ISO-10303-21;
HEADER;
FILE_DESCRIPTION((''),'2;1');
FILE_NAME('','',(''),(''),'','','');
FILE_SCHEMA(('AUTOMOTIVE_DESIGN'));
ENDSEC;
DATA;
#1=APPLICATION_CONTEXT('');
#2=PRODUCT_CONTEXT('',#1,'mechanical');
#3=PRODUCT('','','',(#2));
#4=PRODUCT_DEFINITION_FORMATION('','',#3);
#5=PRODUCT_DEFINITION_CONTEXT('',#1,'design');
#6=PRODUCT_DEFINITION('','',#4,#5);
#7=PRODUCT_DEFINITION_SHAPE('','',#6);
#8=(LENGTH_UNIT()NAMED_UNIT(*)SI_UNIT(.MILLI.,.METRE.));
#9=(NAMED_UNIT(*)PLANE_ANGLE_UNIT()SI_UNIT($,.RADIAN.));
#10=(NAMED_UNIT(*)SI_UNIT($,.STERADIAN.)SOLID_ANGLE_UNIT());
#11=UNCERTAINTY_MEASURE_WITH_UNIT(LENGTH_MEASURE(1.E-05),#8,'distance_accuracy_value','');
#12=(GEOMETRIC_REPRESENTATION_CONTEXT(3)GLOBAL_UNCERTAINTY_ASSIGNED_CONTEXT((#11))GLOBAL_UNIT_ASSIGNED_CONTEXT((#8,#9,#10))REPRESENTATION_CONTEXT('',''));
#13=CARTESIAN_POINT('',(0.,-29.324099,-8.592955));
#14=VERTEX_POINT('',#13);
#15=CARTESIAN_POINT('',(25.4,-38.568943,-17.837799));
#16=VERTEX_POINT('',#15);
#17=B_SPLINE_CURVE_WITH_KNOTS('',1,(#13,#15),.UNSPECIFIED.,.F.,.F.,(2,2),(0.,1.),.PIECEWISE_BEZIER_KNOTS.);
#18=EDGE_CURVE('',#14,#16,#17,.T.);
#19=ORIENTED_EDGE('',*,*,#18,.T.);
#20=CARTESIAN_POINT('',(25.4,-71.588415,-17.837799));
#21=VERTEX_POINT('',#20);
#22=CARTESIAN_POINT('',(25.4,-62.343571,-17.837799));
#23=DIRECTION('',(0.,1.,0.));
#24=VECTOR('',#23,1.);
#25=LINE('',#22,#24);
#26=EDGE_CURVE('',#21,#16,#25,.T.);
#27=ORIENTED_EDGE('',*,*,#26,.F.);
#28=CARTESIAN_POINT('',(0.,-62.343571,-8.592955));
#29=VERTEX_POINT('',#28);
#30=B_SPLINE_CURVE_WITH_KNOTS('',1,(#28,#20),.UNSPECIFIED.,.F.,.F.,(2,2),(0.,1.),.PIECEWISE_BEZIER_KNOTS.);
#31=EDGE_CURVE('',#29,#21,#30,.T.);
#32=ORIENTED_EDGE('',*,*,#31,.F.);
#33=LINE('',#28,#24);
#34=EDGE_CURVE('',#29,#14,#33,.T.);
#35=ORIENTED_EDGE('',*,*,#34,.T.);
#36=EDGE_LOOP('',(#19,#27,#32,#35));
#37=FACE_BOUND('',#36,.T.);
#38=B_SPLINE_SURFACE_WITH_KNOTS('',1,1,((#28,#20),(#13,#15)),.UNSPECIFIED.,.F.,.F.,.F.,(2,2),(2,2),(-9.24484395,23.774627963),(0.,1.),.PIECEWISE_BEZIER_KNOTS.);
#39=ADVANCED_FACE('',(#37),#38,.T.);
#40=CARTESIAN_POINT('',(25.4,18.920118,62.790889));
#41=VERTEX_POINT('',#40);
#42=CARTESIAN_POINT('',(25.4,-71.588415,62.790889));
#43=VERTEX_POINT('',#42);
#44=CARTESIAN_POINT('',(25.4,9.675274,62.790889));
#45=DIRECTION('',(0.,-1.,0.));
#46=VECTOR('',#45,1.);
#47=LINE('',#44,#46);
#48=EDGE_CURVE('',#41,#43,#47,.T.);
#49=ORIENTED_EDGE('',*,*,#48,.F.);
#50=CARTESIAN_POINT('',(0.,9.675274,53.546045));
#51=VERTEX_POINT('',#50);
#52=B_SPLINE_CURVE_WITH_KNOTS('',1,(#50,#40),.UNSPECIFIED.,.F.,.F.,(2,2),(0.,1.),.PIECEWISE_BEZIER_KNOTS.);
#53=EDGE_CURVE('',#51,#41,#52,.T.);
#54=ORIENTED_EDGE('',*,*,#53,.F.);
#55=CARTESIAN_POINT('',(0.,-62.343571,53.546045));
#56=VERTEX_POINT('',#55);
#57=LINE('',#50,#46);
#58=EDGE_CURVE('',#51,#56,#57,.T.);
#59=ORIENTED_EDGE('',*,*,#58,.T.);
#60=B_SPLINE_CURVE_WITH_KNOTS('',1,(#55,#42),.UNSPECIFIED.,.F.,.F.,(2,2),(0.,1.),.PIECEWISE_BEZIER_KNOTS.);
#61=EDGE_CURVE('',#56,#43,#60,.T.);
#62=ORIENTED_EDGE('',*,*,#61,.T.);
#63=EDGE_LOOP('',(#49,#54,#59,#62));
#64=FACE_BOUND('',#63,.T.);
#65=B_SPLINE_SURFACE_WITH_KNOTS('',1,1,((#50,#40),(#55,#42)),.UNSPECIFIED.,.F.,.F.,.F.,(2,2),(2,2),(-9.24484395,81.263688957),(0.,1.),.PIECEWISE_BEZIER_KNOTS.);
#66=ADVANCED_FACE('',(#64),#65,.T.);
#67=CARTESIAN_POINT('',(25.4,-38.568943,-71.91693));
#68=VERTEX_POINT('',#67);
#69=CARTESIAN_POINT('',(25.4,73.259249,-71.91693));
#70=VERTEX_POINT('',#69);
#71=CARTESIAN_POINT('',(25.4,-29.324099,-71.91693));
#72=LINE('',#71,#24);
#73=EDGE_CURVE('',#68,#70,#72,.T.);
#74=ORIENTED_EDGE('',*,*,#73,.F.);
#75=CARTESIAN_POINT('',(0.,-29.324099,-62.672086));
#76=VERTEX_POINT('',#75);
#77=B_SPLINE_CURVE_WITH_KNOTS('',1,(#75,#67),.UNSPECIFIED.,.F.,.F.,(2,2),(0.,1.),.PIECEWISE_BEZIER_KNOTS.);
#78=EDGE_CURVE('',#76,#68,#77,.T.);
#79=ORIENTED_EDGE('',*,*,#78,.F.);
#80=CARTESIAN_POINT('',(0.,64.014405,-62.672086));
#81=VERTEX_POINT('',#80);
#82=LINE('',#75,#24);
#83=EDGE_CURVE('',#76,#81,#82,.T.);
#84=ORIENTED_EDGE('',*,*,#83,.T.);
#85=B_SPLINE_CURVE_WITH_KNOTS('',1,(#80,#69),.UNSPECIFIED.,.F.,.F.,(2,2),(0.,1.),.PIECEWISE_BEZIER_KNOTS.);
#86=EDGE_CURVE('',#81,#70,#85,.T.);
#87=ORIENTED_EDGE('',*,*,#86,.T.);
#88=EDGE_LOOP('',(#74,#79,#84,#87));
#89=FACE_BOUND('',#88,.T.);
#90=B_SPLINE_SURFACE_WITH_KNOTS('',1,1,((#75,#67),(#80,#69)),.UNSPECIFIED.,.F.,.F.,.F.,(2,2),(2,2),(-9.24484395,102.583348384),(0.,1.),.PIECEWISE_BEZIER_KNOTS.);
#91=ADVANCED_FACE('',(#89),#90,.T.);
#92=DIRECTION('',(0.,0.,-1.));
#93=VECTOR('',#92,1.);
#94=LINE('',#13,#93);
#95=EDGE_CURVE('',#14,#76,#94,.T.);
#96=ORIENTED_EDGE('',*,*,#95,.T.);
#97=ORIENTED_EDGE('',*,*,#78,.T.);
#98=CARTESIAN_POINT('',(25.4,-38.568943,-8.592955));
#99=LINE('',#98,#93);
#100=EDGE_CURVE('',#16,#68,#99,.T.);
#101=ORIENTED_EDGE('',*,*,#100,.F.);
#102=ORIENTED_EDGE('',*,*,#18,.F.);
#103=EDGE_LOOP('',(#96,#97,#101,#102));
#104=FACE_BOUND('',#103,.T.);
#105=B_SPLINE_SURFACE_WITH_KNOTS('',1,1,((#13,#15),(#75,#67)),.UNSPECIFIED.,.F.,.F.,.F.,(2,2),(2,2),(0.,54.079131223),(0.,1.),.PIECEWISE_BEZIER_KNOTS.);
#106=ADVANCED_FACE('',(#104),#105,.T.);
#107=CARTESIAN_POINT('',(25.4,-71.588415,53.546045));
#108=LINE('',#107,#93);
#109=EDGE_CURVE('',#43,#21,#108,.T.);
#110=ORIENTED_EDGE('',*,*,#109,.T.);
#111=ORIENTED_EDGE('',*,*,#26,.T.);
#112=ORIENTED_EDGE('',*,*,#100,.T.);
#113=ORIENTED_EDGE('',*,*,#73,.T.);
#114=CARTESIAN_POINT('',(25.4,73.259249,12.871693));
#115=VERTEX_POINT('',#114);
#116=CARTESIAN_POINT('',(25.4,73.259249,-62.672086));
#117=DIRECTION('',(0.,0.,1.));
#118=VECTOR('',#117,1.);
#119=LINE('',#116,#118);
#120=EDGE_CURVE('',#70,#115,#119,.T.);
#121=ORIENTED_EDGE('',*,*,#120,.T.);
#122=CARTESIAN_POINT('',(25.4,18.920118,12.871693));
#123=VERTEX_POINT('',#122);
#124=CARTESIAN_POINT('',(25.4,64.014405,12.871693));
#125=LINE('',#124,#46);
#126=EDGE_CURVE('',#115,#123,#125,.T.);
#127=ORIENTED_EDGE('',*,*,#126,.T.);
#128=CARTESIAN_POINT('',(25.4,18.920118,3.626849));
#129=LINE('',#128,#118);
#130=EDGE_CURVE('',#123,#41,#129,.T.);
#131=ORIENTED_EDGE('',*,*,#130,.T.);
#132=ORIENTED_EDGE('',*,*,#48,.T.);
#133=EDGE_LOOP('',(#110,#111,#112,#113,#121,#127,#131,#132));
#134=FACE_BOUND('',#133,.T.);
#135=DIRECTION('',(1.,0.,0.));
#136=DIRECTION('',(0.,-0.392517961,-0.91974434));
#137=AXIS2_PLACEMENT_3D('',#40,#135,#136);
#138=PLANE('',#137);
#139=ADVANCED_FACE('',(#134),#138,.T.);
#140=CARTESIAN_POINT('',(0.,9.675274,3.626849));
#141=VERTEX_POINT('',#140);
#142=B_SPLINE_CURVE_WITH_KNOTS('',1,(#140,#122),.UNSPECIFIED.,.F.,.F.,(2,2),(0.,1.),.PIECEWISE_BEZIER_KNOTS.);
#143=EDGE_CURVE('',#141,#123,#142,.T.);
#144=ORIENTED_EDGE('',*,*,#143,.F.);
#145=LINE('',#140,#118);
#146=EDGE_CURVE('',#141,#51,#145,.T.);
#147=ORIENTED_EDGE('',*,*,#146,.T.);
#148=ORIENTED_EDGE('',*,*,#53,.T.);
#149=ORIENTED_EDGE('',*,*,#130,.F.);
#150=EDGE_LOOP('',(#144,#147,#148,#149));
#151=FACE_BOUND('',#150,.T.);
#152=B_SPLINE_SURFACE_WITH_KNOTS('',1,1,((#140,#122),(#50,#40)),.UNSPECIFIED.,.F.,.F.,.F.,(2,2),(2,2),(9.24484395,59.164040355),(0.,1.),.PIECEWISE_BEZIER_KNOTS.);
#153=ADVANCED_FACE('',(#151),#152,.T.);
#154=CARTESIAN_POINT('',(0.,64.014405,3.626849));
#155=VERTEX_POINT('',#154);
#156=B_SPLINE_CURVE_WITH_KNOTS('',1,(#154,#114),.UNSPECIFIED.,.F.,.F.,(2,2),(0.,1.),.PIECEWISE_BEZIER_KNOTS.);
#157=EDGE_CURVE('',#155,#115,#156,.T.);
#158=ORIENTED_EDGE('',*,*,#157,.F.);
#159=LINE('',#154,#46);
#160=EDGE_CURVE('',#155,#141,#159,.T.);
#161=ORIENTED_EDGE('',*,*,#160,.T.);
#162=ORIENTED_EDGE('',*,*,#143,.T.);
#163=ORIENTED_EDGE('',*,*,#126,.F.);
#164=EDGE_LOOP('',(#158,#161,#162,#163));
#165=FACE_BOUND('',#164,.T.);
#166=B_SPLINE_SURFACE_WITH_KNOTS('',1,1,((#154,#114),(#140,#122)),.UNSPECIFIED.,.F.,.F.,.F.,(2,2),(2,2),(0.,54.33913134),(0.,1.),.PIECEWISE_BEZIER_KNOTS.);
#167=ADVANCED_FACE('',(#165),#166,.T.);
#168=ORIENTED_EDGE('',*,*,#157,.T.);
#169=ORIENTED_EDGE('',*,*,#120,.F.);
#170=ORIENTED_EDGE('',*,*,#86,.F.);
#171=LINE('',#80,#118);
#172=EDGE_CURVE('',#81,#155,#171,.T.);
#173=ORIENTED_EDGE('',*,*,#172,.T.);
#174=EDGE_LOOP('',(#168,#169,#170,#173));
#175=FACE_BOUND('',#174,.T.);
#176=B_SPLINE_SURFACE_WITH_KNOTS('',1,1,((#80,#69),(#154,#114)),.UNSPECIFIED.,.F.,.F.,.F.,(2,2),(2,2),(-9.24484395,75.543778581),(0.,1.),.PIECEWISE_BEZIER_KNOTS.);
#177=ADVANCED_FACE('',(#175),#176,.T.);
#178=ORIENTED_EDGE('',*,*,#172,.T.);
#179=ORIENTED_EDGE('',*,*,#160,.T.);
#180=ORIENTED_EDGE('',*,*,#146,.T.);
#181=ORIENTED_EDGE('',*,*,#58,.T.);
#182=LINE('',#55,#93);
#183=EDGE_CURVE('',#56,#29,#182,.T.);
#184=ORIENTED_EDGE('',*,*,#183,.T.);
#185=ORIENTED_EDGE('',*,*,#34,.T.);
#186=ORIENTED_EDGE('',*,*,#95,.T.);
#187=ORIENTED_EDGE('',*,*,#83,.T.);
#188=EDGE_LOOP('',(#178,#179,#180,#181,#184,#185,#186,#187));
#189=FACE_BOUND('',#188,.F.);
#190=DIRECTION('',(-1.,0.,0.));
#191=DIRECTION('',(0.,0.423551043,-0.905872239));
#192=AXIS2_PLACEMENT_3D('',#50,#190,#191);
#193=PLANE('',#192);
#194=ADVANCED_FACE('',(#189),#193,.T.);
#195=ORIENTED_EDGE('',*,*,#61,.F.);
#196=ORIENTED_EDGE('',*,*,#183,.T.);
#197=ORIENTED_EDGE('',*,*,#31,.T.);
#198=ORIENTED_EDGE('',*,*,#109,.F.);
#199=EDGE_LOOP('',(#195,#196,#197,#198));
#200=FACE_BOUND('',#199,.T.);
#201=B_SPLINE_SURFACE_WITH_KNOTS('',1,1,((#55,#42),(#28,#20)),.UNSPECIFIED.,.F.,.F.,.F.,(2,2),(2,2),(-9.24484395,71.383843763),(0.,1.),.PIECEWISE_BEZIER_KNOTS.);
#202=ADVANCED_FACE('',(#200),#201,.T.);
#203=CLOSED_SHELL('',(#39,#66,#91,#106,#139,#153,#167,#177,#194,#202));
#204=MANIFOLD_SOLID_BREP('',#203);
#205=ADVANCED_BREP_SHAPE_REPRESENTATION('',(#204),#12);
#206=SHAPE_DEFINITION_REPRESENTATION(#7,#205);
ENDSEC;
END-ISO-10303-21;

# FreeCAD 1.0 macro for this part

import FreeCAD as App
import Part
import Sketcher
from FreeCAD import Vector


def add_polygon(sketch, points):
    """Adds a closed chain of lines whose ends are joined by coincident constraints."""
    first, n = sketch.GeometryCount, len(points)
    for a, b in zip(points, points[1:] + points[:1]):
        sketch.addGeometry(Part.LineSegment(App.Vector(*a, 0), App.Vector(*b, 0)), False)
    for i in range(n):
        sketch.addConstraint(Sketcher.Constraint("Coincident", first + i, 2, first + (i + 1) % n, 1))

doc = App.newDocument("Part")
params = doc.addObject("Spreadsheet::Sheet", "Params")
for row, (alias, value) in enumerate([
    ("pad1_length", "1 in"),
    ("pad1_taper", "20 deg"),
], start=1):
    params.set(f"A{row}", alias)
    params.set(f"B{row}", "=" + value)
    params.setAlias(f"B{row}", alias)

body = doc.addObject("PartDesign::Body", "Body")

# Sketch on YZ plane
sketch1 = doc.addObject("Sketcher::SketchObject", "Sketch")
body.addObject(sketch1)
sketch1.AttachmentSupport = (doc.YZ_Plane, [""])
sketch1.MapMode = "FlatFace"
add_polygon(sketch1, [(10, 54), (-62, 54), (-62, -9), (-29, -9), (-29, -63), (64, -63), (64, 4), (10, 4)])  # lines 0-7
sketch1.addConstraint([
    Sketcher.Constraint("Horizontal", 0),
    Sketcher.Constraint("Vertical", 1),
    Sketcher.Constraint("Horizontal", 2),
    Sketcher.Constraint("Vertical", 3),
    Sketcher.Constraint("Horizontal", 4),
    Sketcher.Constraint("Vertical", 5),
    Sketcher.Constraint("Horizontal", 6),
    Sketcher.Constraint("Vertical", 7),
    Sketcher.Constraint("DistanceY", 1, 2, 1, 1, 62.139),
    Sketcher.Constraint("DistanceX", 2, 1, 2, 2, 33.019472),
    Sketcher.Constraint("DistanceX", 6, 2, 6, 1, 54.339131),
    Sketcher.Constraint("DistanceY", 3, 2, 3, 1, 54.079131),
    Sketcher.Constraint("DistanceX", 2, 2, -1, 1, 29.324099),
    Sketcher.Constraint("DistanceX", 0, 2, 0, 1, 72.018845),
    Sketcher.Constraint("DistanceY", 5, 1, 5, 2, 66.298935),
    Sketcher.Constraint("DistanceY", -1, 1, 5, 2, 3.626849),
])
pad1 = doc.addObject("PartDesign::Pad", "Pad")
body.addObject(pad1)
pad1.Profile = sketch1
pad1.setExpression("Length", "Params.pad1_length")
pad1.setExpression("TaperAngle", "Params.pad1_taper")

doc.recompute()
